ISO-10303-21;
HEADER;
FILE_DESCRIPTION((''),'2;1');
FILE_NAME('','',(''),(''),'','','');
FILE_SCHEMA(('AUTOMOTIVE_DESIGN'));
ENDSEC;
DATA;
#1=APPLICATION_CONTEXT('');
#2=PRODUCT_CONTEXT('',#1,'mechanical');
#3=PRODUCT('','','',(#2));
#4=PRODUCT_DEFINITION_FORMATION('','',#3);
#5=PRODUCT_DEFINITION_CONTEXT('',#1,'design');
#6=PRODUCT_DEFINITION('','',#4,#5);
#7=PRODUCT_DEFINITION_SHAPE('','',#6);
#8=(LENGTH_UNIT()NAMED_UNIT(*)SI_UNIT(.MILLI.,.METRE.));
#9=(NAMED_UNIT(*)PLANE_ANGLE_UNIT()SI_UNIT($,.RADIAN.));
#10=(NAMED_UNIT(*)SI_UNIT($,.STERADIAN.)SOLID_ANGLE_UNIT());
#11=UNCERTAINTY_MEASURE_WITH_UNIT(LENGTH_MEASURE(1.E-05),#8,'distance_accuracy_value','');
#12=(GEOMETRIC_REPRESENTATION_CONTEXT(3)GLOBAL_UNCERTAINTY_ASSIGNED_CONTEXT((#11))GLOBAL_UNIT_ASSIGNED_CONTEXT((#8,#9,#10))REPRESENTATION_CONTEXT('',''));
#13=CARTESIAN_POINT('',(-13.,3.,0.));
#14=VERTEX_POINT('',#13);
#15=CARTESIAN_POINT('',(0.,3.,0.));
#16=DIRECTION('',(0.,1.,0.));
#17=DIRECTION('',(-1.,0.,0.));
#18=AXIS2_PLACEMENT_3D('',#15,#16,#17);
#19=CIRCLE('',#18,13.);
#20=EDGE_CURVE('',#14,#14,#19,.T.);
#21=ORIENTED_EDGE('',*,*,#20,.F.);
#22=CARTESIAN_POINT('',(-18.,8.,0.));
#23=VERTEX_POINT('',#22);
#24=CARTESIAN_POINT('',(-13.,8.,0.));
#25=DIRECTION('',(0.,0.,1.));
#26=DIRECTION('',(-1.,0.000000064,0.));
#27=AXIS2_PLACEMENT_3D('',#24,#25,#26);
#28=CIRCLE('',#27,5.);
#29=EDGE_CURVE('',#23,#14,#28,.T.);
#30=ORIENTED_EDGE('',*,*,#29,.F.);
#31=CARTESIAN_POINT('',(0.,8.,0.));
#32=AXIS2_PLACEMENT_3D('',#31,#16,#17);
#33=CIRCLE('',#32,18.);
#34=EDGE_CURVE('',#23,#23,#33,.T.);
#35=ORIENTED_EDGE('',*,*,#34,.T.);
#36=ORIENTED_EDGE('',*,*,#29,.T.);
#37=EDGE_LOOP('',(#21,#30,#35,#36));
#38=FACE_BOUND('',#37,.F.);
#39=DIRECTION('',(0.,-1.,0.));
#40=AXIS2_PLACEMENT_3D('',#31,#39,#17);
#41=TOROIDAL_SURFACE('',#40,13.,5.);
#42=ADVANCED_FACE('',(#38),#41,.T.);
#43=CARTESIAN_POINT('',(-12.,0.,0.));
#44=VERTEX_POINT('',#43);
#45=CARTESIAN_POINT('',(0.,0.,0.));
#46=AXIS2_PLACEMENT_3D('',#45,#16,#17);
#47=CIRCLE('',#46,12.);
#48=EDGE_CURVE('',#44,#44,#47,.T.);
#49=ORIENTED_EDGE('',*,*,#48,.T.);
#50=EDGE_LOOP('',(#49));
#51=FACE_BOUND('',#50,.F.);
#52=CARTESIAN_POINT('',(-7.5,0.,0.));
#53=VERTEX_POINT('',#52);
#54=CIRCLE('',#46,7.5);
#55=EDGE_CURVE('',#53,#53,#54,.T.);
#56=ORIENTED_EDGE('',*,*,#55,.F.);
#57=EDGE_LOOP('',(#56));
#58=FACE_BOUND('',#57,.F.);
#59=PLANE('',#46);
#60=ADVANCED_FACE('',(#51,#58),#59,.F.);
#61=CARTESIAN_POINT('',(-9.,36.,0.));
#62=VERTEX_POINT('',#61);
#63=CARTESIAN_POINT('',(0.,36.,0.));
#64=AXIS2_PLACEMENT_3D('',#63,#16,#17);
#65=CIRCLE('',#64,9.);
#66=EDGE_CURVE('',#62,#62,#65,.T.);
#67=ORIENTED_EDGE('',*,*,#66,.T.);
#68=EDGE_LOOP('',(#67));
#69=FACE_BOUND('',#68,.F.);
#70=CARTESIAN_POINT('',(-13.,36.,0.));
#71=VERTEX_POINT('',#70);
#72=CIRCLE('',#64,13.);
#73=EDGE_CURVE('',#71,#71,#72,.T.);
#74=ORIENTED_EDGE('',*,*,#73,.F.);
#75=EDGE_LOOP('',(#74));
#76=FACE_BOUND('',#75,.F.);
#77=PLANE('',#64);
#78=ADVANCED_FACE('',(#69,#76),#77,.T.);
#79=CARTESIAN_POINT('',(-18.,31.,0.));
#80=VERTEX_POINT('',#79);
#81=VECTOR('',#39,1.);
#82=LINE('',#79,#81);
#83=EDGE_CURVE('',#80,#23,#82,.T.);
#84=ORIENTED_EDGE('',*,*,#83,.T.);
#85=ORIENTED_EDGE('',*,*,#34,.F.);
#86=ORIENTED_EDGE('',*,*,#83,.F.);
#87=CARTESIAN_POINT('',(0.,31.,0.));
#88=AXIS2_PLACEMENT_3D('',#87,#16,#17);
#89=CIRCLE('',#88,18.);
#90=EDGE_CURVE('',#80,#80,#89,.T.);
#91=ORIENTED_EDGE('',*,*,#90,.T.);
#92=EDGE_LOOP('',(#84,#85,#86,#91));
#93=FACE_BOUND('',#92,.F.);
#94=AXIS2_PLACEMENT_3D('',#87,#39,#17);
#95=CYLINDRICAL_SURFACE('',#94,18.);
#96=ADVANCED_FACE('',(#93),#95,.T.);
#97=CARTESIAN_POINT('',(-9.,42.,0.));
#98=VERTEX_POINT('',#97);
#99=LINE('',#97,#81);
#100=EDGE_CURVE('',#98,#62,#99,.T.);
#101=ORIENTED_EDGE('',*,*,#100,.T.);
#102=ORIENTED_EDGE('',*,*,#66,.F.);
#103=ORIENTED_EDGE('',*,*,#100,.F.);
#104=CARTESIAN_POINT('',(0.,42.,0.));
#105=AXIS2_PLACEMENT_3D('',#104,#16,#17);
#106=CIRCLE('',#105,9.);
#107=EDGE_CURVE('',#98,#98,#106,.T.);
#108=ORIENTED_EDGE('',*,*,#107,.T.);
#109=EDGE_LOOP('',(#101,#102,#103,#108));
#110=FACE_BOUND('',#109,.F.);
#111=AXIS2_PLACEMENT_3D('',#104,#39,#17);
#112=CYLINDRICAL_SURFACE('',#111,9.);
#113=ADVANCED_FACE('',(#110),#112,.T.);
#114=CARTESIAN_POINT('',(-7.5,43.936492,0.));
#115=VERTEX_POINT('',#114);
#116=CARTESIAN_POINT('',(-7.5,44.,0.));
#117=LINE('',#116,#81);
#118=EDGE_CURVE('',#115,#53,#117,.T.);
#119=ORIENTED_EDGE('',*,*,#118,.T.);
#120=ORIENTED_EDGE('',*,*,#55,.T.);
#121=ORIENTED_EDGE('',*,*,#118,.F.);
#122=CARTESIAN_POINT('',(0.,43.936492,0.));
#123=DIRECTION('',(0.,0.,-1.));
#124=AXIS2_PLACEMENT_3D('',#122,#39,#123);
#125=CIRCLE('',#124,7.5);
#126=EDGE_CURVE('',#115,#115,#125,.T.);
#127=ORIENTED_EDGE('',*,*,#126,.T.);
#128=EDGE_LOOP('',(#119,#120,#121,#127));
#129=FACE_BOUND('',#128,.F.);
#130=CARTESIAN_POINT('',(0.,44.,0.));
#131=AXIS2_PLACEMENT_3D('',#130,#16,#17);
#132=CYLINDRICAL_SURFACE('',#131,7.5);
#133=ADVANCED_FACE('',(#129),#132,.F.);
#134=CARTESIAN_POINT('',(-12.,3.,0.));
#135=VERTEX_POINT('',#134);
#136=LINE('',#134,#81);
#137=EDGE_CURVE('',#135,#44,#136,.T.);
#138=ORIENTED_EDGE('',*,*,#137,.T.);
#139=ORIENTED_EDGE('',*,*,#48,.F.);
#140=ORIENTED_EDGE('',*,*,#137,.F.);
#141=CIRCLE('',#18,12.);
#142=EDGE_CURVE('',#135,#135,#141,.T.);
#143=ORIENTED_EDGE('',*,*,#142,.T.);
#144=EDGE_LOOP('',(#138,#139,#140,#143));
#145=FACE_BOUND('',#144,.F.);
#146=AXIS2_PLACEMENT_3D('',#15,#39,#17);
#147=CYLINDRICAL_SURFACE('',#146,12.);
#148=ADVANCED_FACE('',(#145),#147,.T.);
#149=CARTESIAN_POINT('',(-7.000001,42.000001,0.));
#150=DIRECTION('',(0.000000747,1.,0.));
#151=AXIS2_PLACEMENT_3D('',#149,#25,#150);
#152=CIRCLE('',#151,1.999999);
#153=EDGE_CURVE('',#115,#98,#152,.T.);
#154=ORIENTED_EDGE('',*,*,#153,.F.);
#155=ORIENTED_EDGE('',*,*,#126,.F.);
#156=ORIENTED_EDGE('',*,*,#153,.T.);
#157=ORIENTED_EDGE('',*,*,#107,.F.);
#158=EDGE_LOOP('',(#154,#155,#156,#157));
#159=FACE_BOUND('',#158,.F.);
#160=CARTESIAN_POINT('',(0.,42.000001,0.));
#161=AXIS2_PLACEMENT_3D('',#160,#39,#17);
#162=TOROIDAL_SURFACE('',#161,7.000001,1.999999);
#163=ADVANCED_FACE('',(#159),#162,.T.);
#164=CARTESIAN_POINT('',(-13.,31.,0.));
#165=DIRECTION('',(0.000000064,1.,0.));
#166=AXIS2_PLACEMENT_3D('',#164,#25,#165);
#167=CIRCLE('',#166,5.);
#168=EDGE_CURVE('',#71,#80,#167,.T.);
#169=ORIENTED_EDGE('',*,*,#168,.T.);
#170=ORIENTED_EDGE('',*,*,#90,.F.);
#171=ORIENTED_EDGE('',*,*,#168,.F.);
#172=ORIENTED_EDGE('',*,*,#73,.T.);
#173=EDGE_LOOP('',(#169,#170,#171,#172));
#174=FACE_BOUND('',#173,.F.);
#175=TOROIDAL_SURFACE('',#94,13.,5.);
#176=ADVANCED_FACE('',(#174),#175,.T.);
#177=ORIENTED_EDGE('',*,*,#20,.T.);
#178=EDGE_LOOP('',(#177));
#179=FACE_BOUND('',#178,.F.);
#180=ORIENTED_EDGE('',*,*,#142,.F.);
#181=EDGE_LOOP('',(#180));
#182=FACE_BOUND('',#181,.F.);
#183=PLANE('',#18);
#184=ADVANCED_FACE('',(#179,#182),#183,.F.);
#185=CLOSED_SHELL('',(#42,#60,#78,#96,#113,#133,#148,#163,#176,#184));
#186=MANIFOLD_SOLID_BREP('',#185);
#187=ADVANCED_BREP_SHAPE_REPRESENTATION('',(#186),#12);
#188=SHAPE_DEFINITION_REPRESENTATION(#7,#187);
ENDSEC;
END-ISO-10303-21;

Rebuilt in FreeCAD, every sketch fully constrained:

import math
import FreeCAD as App
import Part
import Sketcher

V = App.Vector

doc = App.newDocument("Part")
body = doc.addObject("PartDesign::Body", "Body")

# Sketch on XY plane
sketch1 = body.newObject("Sketcher::SketchObject", "Sketch")
sketch1.AttachmentSupport = (doc.getObject("XY_Plane"), [""])
sketch1.MapMode = "FlatFace"
sketch1.addGeometry([
    Part.LineSegment(V(-12, 0, 0), V(0, 0, 0)),  # 0
    Part.LineSegment(V(0, 0, 0), V(0, 44, 0)),  # 1
    Part.LineSegment(V(0, 44, 0), V(-7, 44, 0)),  # 2
    Part.ArcOfCircle(Part.Circle(V(-7, 42, 0), V(0, 0, 1), 2), math.radians(90), math.radians(180)),  # 3
    Part.LineSegment(V(-9, 42, 0), V(-9, 36, 0)),  # 4
    Part.LineSegment(V(-9, 36, 0), V(-13, 36, 0)),  # 5
    Part.ArcOfCircle(Part.Circle(V(-13, 31, 0), V(0, 0, 1), 5), math.radians(90), math.radians(180)),  # 6
    Part.LineSegment(V(-18, 31, 0), V(-18, 8, 0)),  # 7
    Part.ArcOfCircle(Part.Circle(V(-13, 8, 0), V(0, 0, 1), 5), math.radians(180), math.radians(270)),  # 8
    Part.LineSegment(V(-13, 3, 0), V(-12, 3, 0)),  # 9
    Part.LineSegment(V(-12, 3, 0), V(-12, 0, 0)),  # 10
], False)
sketch1.addConstraint([
    Sketcher.Constraint("Coincident", 0, 2, 1, 1),
    Sketcher.Constraint("Coincident", 1, 2, 2, 1),
    Sketcher.Constraint("Tangent", 2, 2, 3, 1),
    Sketcher.Constraint("Tangent", 3, 2, 4, 1),
    Sketcher.Constraint("Coincident", 4, 2, 5, 1),
    Sketcher.Constraint("Tangent", 5, 2, 6, 1),
    Sketcher.Constraint("Tangent", 6, 2, 7, 1),
    Sketcher.Constraint("Tangent", 7, 2, 8, 1),
    Sketcher.Constraint("Tangent", 8, 2, 9, 1),
    Sketcher.Constraint("Coincident", 9, 2, 10, 1),
    Sketcher.Constraint("Coincident", 10, 2, 0, 1),
    Sketcher.Constraint("Horizontal", 0),
    Sketcher.Constraint("Vertical", 1),
    Sketcher.Constraint("Horizontal", 2),
    Sketcher.Constraint("Vertical", 4),
    Sketcher.Constraint("Horizontal", 5),
    Sketcher.Constraint("Vertical", 7),
    Sketcher.Constraint("Horizontal", 9),
    Sketcher.Constraint("Vertical", 10),
    Sketcher.Constraint("Coincident", 0, 2, -1, 1),
    Sketcher.Constraint("Equal", 6, 8),
    Sketcher.Constraint("Radius", 3, 1.999999),
    Sketcher.Constraint("Radius", 6, 5.0),
    Sketcher.Constraint("DistanceX", 0, 1, 0, 2, 12.0),
    Sketcher.Constraint("DistanceX", 2, 2, 2, 1, 7.0),
    Sketcher.Constraint("DistanceX", 5, 2, 5, 1, 4.0),
    Sketcher.Constraint("DistanceY", 1, 1, 1, 2, 44.0),
    Sketcher.Constraint("DistanceY", 4, 2, 4, 1, 6.0),
    Sketcher.Constraint("DistanceY", 7, 2, 7, 1, 23.0),
])
revolution = body.newObject("PartDesign::Revolution", "Revolution")
revolution.Profile = sketch1
revolution.ReferenceAxis = (sketch1, ["V_Axis"])
revolution.Angle = 360

# Sketch on XZ plane
sketch2 = body.newObject("Sketcher::SketchObject", "Sketch001")
sketch2.AttachmentSupport = (doc.getObject("XZ_Plane"), [""])
sketch2.MapMode = "FlatFace"
sketch2.AttachmentOffset = App.Placement(V(0, 0, -44), App.Rotation())
sketch2.addGeometry(Part.Circle(V(0, 0, 0), V(0, 0, 1), 8), False)
sketch2.addConstraint([
    Sketcher.Constraint("Coincident", 0, 3, -1, 1),
    Sketcher.Constraint("Diameter", 0, 15.0),
])
pocket1 = body.newObject("PartDesign::Pocket", "Pocket")
pocket1.Profile = sketch2
pocket1.Length = 56.33377
pocket1.Reversed = True

doc.recompute()
